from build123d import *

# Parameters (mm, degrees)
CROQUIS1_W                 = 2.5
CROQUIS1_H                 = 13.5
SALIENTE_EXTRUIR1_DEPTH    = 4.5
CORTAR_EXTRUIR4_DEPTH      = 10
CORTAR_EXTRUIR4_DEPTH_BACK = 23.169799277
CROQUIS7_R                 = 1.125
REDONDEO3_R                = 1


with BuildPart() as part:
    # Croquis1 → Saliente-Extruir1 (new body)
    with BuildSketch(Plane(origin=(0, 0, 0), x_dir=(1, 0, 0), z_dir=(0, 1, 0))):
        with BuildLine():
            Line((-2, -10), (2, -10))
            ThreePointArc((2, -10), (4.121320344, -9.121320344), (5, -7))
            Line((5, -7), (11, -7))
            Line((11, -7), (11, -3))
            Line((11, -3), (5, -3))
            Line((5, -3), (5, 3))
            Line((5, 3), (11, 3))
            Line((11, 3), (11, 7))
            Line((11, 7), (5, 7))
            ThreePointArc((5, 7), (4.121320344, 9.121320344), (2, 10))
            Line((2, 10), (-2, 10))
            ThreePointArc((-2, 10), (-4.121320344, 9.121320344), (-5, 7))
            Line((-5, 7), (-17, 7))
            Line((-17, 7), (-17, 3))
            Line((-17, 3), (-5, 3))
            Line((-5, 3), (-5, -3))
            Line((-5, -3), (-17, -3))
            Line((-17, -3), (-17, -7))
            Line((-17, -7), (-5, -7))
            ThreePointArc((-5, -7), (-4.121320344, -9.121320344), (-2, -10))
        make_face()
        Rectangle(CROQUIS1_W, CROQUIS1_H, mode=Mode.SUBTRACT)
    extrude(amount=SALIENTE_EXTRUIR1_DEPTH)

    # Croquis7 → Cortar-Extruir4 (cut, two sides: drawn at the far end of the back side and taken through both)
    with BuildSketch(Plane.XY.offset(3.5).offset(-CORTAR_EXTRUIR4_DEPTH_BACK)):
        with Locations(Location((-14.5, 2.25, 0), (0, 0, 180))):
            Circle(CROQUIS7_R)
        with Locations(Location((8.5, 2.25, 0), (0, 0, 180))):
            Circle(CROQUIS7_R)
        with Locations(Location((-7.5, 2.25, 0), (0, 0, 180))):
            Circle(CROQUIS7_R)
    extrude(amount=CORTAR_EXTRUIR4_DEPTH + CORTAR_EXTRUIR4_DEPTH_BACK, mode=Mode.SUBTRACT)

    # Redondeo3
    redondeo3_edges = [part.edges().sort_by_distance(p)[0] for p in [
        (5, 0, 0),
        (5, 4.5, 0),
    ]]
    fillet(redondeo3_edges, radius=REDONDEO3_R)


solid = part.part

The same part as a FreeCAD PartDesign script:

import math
import FreeCAD as App
import Part
import Sketcher

V = App.Vector
Q = App.Units.Quantity


def edges_at(feature, points):
    """Names of the edges that pass closest to the given points."""
    edges = feature.Shape.Edges
    near = lambda p: min(range(len(edges)), key=lambda i: edges[i].distToShape(Part.Vertex(*p))[0])
    return sorted({f"Edge{near(p) + 1}" for p in points})

doc = App.newDocument("Part")
body = doc.addObject("PartDesign::Body", "Body")

sketch1 = doc.addObject("Sketcher::SketchObject", "Sketch")
body.addObject(sketch1)
sketch1.AttachmentSupport = (doc.XZ_Plane, [""])
sketch1.MapMode = "FlatFace"
sketch1.addGeometry([
    Part.LineSegment(V(-2, 10, 0), V(2, 10, 0)),
    Part.ArcOfCircle(Part.Circle(V(2, 7, 0), V(0, 0, 1), 3), math.radians(0), math.radians(90)),
    Part.LineSegment(V(5, 7, 0), V(11, 7, 0)),
    Part.LineSegment(V(11, 7, 0), V(11, 3, 0)),
    Part.LineSegment(V(11, 3, 0), V(5, 3, 0)),
    Part.LineSegment(V(5, 3, 0), V(5, -3, 0)),
    Part.LineSegment(V(5, -3, 0), V(11, -3, 0)),
    Part.LineSegment(V(11, -3, 0), V(11, -7, 0)),
    Part.LineSegment(V(11, -7, 0), V(5, -7, 0)),
    Part.ArcOfCircle(Part.Circle(V(2, -7, 0), V(0, 0, 1), 3), math.radians(-90), math.radians(0)),
    Part.LineSegment(V(2, -10, 0), V(-2, -10, 0)),
    Part.ArcOfCircle(Part.Circle(V(-2, -7, 0), V(0, 0, 1), 3), math.radians(180), math.radians(270)),
    Part.LineSegment(V(-5, -7, 0), V(-17, -7, 0)),
    Part.LineSegment(V(-17, -7, 0), V(-17, -3, 0)),
    Part.LineSegment(V(-17, -3, 0), V(-5, -3, 0)),
    Part.LineSegment(V(-5, -3, 0), V(-5, 3, 0)),
    Part.LineSegment(V(-5, 3, 0), V(-17, 3, 0)),
    Part.LineSegment(V(-17, 3, 0), V(-17, 7, 0)),
    Part.LineSegment(V(-17, 7, 0), V(-5, 7, 0)),
    Part.ArcOfCircle(Part.Circle(V(-2, 7, 0), V(0, 0, 1), 3), math.radians(90), math.radians(180)),
    Part.LineSegment(V(1.25, 6.75, 0), V(-1.25, 6.75, 0)),
    Part.LineSegment(V(-1.25, 6.75, 0), V(-1.25, -6.75, 0)),
    Part.LineSegment(V(-1.25, -6.75, 0), V(1.25, -6.75, 0)),
    Part.LineSegment(V(1.25, -6.75, 0), V(1.25, 6.75, 0)),
], False)
sketch1.addConstraint([
    Sketcher.Constraint("Tangent", 0, 2, 1, 2),
    Sketcher.Constraint("Coincident", 1, 1, 2, 1),
    Sketcher.Constraint("Coincident", 2, 2, 3, 1),
    Sketcher.Constraint("Coincident", 3, 2, 4, 1),
    Sketcher.Constraint("Coincident", 4, 2, 5, 1),
    Sketcher.Constraint("Coincident", 5, 2, 6, 1),
    Sketcher.Constraint("Coincident", 6, 2, 7, 1),
    Sketcher.Constraint("Coincident", 7, 2, 8, 1),
    Sketcher.Constraint("Coincident", 8, 2, 9, 2),
    Sketcher.Constraint("Tangent", 9, 1, 10, 1),
    Sketcher.Constraint("Tangent", 10, 2, 11, 2),
    Sketcher.Constraint("Coincident", 11, 1, 12, 1),
    Sketcher.Constraint("Coincident", 12, 2, 13, 1),
    Sketcher.Constraint("Coincident", 13, 2, 14, 1),
    Sketcher.Constraint("Coincident", 14, 2, 15, 1),
    Sketcher.Constraint("Coincident", 15, 2, 16, 1),
    Sketcher.Constraint("Coincident", 16, 2, 17, 1),
    Sketcher.Constraint("Coincident", 17, 2, 18, 1),
    Sketcher.Constraint("Coincident", 18, 2, 19, 2),
    Sketcher.Constraint("Tangent", 19, 1, 0, 1),
    Sketcher.Constraint("Coincident", 20, 2, 21, 1),
    Sketcher.Constraint("Coincident", 21, 2, 22, 1),
    Sketcher.Constraint("Coincident", 22, 2, 23, 1),
    Sketcher.Constraint("Coincident", 23, 2, 20, 1),
    Sketcher.Constraint("Horizontal", 0),
    Sketcher.Constraint("Horizontal", 2),
    Sketcher.Constraint("Vertical", 3),
    Sketcher.Constraint("Horizontal", 4),
    Sketcher.Constraint("Vertical", 5),
    Sketcher.Constraint("Horizontal", 6),
    Sketcher.Constraint("Vertical", 7),
    Sketcher.Constraint("Horizontal", 8),
    Sketcher.Constraint("Horizontal", 10),
    Sketcher.Constraint("Horizontal", 12),
    Sketcher.Constraint("Vertical", 13),
    Sketcher.Constraint("Horizontal", 14),
    Sketcher.Constraint("Vertical", 15),
    Sketcher.Constraint("Horizontal", 16),
    Sketcher.Constraint("Vertical", 17),
    Sketcher.Constraint("Horizontal", 18),
    Sketcher.Constraint("Horizontal", 20),
    Sketcher.Constraint("Vertical", 21),
    Sketcher.Constraint("Horizontal", 22),
    Sketcher.Constraint("Vertical", 23),
    Sketcher.Constraint("Equal", 1, 9),
    Sketcher.Constraint("Equal", 9, 11),
    Sketcher.Constraint("Equal", 11, 19),
    Sketcher.Constraint("Symmetric", 1, 3, 11, 3, -1, 1),
    Sketcher.Constraint("Symmetric", 4, 2, 14, 2, -1, 1),
    Sketcher.Constraint("Symmetric", 8, 2, 18, 2, -1, 1),
    Sketcher.Constraint("Symmetric", 20, 2, 22, 2, -1, 1),
    Sketcher.Constraint("Symmetric", 8, 2, 11, 1, -2),
    Sketcher.Constraint("Symmetric", 3, 2, 6, 2, -1),
    Sketcher.Constraint("Symmetric", 13, 2, 16, 2, -1),
    Sketcher.Constraint("Horizontal", 19, 3, 1, 1),
    Sketcher.Constraint("Horizontal", 11, 3, 7, 2),
    Sketcher.Constraint("Vertical", 1, 1, 4, 2),
    Sketcher.Constraint("Equal", 10, 3),
    Sketcher.Constraint("Equal", 8, 5),
    Sketcher.Constraint("Radius", 1, Q("3 mm")),
    Sketcher.Constraint("DistanceX", 0, 1, 0, 2, Q("4 mm")),
    Sketcher.Constraint("DistanceX", 2, 1, 2, 2, Q("6 mm")),
    Sketcher.Constraint("DistanceX", 12, 2, 12, 1, Q("12 mm")),
    Sketcher.Constraint("DistanceX", 20, 2, 20, 1, Q("2.5 mm")),
    Sketcher.Constraint("DistanceY", 21, 2, 21, 1, Q("13.5 mm")),
])
pad1 = doc.addObject("PartDesign::Pad", "Pad")
body.addObject(pad1)
pad1.Profile = sketch1
pad1.Length = 4.5
pad1.Reversed = True

sketch2 = doc.addObject("Sketcher::SketchObject", "Sketch001")
body.addObject(sketch2)
sketch2.AttachmentSupport = (doc.XY_Plane, [""])
sketch2.MapMode = "FlatFace"
sketch2.AttachmentOffset = App.Placement(V(0, 0, 3.5), App.Rotation())
sketch2.addGeometry([
    Part.Circle(V(-14.5, 2.25, 0), V(0, 0, 1), 1.125),
    Part.Circle(V(8.5, 2.25, 0), V(0, 0, 1), 1.125),
    Part.Circle(V(-7.5, 2.25, 0), V(0, 0, 1), 1.125),
], False)
sketch2.addConstraint([
    Sketcher.Constraint("Equal", 0, 1),
    Sketcher.Constraint("Equal", 1, 2),
    Sketcher.Constraint("Horizontal", 0, 3, 1, 3),
    Sketcher.Constraint("Horizontal", 1, 3, 2, 3),
    Sketcher.Constraint("Diameter", 0, Q("2.25 mm")),
    Sketcher.Constraint("DistanceX", 0, 3, 1, 3, Q("23 mm")),
    Sketcher.Constraint("DistanceX", 0, 3, 2, 3, Q("7 mm")),
    Sketcher.Constraint("DistanceX", 0, 3, -1, 1, Q("14.5 mm")),
    Sketcher.Constraint("DistanceY", -1, 1, 0, 3, Q("2.25 mm")),
])
pocket1 = doc.addObject("PartDesign::Pocket", "Pocket")
body.addObject(pocket1)
pocket1.Profile = sketch2
pocket1.Type = "ThroughAll"
pocket1.Midplane = True
doc.recompute()

fillet = doc.addObject("PartDesign::Fillet", "Fillet")
body.addObject(fillet)
fillet.Base = (pocket1, edges_at(pocket1, [(5, 0, 0), (5, 4.5, 0)]))
fillet.Radius = 1

doc.recompute()
